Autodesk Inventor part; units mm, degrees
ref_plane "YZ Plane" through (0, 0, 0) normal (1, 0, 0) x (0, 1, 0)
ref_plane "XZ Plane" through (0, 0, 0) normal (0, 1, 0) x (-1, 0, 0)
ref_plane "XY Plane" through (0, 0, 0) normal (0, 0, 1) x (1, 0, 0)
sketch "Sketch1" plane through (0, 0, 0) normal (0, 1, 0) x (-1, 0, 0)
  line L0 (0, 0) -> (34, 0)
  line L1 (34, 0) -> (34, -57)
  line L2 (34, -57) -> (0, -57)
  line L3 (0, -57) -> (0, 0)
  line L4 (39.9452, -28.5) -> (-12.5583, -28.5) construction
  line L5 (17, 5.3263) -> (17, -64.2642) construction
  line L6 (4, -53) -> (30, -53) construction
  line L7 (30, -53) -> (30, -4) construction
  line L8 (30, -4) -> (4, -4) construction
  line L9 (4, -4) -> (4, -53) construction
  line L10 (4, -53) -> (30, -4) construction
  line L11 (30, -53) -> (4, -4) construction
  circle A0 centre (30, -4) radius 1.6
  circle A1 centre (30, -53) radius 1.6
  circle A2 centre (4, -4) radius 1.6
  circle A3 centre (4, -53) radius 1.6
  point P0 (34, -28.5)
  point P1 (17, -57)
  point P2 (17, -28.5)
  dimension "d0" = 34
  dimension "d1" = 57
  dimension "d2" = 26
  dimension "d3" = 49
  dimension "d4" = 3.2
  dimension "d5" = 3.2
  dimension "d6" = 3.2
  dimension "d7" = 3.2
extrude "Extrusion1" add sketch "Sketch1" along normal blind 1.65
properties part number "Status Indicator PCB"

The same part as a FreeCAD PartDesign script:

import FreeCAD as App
import Part
import Sketcher
Q = App.Units.Quantity

doc = App.newDocument("Part")
body = doc.addObject("PartDesign::Body", "Body")

# Sketch on XZ plane
sketch1 = doc.addObject("Sketcher::SketchObject", "Sketch")
body.addObject(sketch1)
sketch1.AttachmentSupport = (doc.XZ_Plane, [""])
sketch1.MapMode = "FlatFace"
sketch1.addGeometry(Part.LineSegment(App.Vector(-34, 0, 0), App.Vector(0, 0, 0)), False)
sketch1.addGeometry(Part.LineSegment(App.Vector(0, 0, 0), App.Vector(0, -57, 0)), False)
sketch1.addGeometry(Part.LineSegment(App.Vector(0, -57, 0), App.Vector(-34, -57, 0)), False)
sketch1.addGeometry(Part.LineSegment(App.Vector(-34, -57, 0), App.Vector(-34, 0, 0)), False)
sketch1.addGeometry(Part.Circle(App.Vector(-4, -53, 0), App.Vector(0, 0, 1), 1.6), False)
sketch1.addGeometry(Part.Circle(App.Vector(-30, -53, 0), App.Vector(0, 0, 1), 1.6), False)
sketch1.addGeometry(Part.Circle(App.Vector(-4, -4, 0), App.Vector(0, 0, 1), 1.6), False)
sketch1.addGeometry(Part.Circle(App.Vector(-30, -4, 0), App.Vector(0, 0, 1), 1.6), False)
sketch1.addConstraint(Sketcher.Constraint("Coincident", 0, 2, 1, 1))
sketch1.addConstraint(Sketcher.Constraint("Coincident", 1, 2, 2, 1))
sketch1.addConstraint(Sketcher.Constraint("Coincident", 2, 2, 3, 1))
sketch1.addConstraint(Sketcher.Constraint("Coincident", 3, 2, 0, 1))
sketch1.addConstraint(Sketcher.Constraint("Horizontal", 0))
sketch1.addConstraint(Sketcher.Constraint("Vertical", 1))
sketch1.addConstraint(Sketcher.Constraint("Horizontal", 2))
sketch1.addConstraint(Sketcher.Constraint("Vertical", 3))
sketch1.addConstraint(Sketcher.Constraint("Coincident", 0, 2, -1, 1))
sketch1.addConstraint(Sketcher.Constraint("Equal", 4, 5))
sketch1.addConstraint(Sketcher.Constraint("Equal", 5, 6))
sketch1.addConstraint(Sketcher.Constraint("Equal", 6, 7))
sketch1.addConstraint(Sketcher.Constraint("Horizontal", 4, 3, 5, 3))
sketch1.addConstraint(Sketcher.Constraint("Horizontal", 6, 3, 7, 3))
sketch1.addConstraint(Sketcher.Constraint("Vertical", 4, 3, 6, 3))
sketch1.addConstraint(Sketcher.Constraint("Vertical", 5, 3, 7, 3))
sketch1.addConstraint(Sketcher.Constraint("Diameter", 4, Q("3.2 mm")))
sketch1.addConstraint(Sketcher.Constraint("DistanceX", 0, 1, 0, 2, Q("34 mm")))
sketch1.addConstraint(Sketcher.Constraint("DistanceY", 1, 2, 1, 1, Q("57 mm")))
sketch1.addConstraint(Sketcher.Constraint("DistanceX", 5, 3, 4, 3, Q("26 mm")))
sketch1.addConstraint(Sketcher.Constraint("DistanceY", 4, 3, 6, 3, Q("49 mm")))
sketch1.addConstraint(Sketcher.Constraint("DistanceX", 4, 3, -1, 1, Q("4 mm")))
sketch1.addConstraint(Sketcher.Constraint("DistanceY", 4, 3, -1, 1, Q("53 mm")))
pad1 = doc.addObject("PartDesign::Pad", "Pad")
body.addObject(pad1)
pad1.Profile = sketch1
pad1.Length = 1.65
pad1.Reversed = True

doc.recompute()
